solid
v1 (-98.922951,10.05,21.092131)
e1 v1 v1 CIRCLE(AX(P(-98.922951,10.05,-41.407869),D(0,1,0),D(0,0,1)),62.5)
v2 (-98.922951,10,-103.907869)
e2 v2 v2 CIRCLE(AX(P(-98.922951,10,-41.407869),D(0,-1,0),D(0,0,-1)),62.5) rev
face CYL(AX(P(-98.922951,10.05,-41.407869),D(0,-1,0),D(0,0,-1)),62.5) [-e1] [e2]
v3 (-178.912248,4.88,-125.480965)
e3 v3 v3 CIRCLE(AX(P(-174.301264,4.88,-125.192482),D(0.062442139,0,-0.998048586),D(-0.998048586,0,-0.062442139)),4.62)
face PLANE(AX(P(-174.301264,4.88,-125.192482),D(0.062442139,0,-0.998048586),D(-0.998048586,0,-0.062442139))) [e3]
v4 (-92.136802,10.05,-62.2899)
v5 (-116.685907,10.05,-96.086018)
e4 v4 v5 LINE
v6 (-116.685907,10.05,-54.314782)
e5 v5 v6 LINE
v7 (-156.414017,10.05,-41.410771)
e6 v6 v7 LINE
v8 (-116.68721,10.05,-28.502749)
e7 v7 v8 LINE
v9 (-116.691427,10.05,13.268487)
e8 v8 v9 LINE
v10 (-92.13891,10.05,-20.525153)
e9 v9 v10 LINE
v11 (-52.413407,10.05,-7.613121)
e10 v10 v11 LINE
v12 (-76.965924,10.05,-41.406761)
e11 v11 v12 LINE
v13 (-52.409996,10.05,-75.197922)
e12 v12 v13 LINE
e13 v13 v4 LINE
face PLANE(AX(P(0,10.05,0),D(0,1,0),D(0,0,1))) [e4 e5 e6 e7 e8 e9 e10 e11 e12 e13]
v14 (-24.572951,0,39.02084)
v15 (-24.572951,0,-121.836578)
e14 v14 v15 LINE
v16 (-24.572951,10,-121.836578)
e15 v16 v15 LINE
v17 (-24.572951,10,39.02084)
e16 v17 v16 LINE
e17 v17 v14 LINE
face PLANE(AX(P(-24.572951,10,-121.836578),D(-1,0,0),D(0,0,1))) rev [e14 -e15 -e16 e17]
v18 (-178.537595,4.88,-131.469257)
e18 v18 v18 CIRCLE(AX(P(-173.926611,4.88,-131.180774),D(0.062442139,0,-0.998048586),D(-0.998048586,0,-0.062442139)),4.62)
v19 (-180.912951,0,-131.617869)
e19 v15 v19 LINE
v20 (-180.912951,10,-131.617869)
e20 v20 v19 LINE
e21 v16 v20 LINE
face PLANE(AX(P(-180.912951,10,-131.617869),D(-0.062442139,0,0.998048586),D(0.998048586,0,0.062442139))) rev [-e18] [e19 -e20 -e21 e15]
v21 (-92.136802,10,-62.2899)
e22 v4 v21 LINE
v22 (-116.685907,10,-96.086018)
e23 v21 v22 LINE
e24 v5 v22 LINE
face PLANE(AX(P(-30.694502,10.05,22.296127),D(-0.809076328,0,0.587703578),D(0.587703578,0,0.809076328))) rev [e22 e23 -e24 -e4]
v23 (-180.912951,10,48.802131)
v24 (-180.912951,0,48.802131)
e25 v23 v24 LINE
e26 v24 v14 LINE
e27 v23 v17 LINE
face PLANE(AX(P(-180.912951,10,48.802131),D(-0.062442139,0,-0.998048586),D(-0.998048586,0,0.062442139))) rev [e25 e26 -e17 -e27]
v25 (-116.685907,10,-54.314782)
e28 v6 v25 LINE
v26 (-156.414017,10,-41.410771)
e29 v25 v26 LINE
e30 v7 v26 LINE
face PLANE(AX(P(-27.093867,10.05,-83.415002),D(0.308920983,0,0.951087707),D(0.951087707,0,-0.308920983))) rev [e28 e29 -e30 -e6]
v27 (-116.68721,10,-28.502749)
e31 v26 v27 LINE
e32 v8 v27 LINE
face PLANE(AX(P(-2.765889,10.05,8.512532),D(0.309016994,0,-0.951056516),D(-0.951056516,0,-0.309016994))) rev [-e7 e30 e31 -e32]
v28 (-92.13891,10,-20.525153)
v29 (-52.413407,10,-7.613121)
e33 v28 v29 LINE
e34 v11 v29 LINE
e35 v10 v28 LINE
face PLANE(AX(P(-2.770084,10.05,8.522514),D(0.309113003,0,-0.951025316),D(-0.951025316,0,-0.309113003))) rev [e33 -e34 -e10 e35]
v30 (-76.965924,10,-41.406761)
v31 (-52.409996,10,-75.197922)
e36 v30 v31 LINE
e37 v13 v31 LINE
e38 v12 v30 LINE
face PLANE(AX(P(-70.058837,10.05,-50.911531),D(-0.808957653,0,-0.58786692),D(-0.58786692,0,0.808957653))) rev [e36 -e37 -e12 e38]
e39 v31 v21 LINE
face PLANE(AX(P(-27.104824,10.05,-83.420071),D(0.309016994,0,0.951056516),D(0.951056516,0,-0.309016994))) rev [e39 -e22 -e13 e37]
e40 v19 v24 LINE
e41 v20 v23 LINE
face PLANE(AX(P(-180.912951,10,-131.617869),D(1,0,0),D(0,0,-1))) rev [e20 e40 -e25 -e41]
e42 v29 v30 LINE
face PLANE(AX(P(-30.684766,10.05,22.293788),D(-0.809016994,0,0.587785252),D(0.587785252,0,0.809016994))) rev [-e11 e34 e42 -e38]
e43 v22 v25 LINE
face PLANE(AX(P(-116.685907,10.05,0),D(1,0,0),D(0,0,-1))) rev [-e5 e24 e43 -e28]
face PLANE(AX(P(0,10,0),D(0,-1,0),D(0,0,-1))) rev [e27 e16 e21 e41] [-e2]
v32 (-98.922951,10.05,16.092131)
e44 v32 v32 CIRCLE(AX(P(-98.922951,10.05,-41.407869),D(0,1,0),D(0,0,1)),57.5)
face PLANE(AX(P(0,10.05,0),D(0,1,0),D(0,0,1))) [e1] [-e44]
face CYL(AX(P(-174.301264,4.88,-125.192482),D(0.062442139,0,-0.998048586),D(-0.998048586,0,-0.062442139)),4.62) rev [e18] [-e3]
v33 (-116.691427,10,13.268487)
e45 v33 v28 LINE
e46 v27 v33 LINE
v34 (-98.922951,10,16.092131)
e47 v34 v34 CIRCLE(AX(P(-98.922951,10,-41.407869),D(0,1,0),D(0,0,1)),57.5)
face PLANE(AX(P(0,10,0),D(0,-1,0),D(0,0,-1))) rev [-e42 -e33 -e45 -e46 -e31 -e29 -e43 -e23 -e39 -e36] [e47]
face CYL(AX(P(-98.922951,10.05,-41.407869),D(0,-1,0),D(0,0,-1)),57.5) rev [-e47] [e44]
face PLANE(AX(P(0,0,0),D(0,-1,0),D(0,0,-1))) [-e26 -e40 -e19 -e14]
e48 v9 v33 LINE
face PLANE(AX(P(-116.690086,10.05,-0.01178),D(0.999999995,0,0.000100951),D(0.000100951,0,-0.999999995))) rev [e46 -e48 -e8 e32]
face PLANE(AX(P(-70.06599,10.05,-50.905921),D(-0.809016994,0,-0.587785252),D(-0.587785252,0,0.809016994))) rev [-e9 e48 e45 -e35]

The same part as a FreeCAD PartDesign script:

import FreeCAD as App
import Part
import Sketcher
from FreeCAD import Vector
Q = App.Units.Quantity

doc = App.newDocument("Part")
body = doc.addObject("PartDesign::Body", "Body")

sketch1 = body.newObject("Sketcher::SketchObject", "Sketch")
sketch1.AttachmentSupport = (doc.getObject("XZ_Plane"), [""])
sketch1.MapMode = "FlatFace"
sketch1.addGeometry(Part.LineSegment(Vector(-180.912951, -131.617869, 0), Vector(-180.912951, 48.802131, 0)), False)
sketch1.addGeometry(Part.LineSegment(Vector(-180.912951, 48.802131, 0), Vector(-24.572951, 39.02084, 0)), False)
sketch1.addGeometry(Part.LineSegment(Vector(-24.572951, 39.02084, 0), Vector(-24.572951, -121.836578, 0)), False)
sketch1.addGeometry(Part.LineSegment(Vector(-24.572951, -121.836578, 0), Vector(-180.912951, -131.617869, 0)), False)
sketch1.addConstraint(Sketcher.Constraint("Coincident", 0, 2, 1, 1))
sketch1.addConstraint(Sketcher.Constraint("Coincident", 1, 2, 2, 1))
sketch1.addConstraint(Sketcher.Constraint("Coincident", 2, 2, 3, 1))
sketch1.addConstraint(Sketcher.Constraint("Coincident", 3, 2, 0, 1))
sketch1.addConstraint(Sketcher.Constraint("Vertical", 0))
sketch1.addConstraint(Sketcher.Constraint("Vertical", 2))
sketch1.addConstraint(Sketcher.Constraint("Equal", 1, 3))
sketch1.addConstraint(Sketcher.Constraint("DistanceY", 0, 1, 0, 2, Q("180.42 mm")))
sketch1.addConstraint(Sketcher.Constraint("Angle", 1, Q("-3.58 deg")))
sketch1.addConstraint(Sketcher.Constraint("DistanceX", 0, 2, 1, 2, Q("156.34 mm")))
sketch1.addConstraint(Sketcher.Constraint("DistanceX", 0, 2, -1, 1, Q("180.912951 mm")))
sketch1.addConstraint(Sketcher.Constraint("DistanceY", -1, 1, 0, 2, Q("48.802131 mm")))
pad1 = body.newObject("PartDesign::Pad", "Pad")
pad1.Profile = sketch1
pad1.Length = 10
pad1.Reversed = True

sketch2 = body.newObject("Sketcher::SketchObject", "Sketch001")
sketch2.Placement = App.Placement(Vector(7.49708, 0, -119.830141), App.Rotation(Vector(-0.998048586, 0, -0.062442139), Vector(0, 1.000000001, 0), Vector(0.062442139, 0, -0.998048586), "ZXY"))
sketch2.addGeometry(Part.Circle(Vector(181.778416, 4.88, 0), Vector(0, 0, 1), 4.62), False)
sketch2.addConstraint(Sketcher.Constraint("Diameter", 0, Q("9.24 mm")))
sketch2.addConstraint(Sketcher.Constraint("DistanceY", -1, 1, 0, 3, Q("4.88 mm")))
sketch2.addConstraint(Sketcher.Constraint("DistanceX", -1, 1, 0, 3, Q("181.778416 mm")))
pocket1 = body.newObject("PartDesign::Pocket", "Pocket")
pocket1.Profile = sketch2
pocket1.Length = 6

sketch3 = body.newObject("Sketcher::SketchObject", "Sketch002")
sketch3.AttachmentSupport = (doc.getObject("XZ_Plane"), [""])
sketch3.MapMode = "FlatFace"
sketch3.AttachmentOffset = App.Placement(Vector(0, 0, -10), App.Rotation())
sketch3.addGeometry(Part.Circle(Vector(-98.922951, -41.407869, 0), Vector(0, 0, 1), 62.5), False)
sketch3.addGeometry(Part.Circle(Vector(-98.922951, -41.407869, 0), Vector(0, 0, 1), 57.5), False)
sketch3.addGeometry(Part.LineSegment(Vector(-76.965924, -41.406761, 0), Vector(-52.409996, -75.197922, 0)), False)
sketch3.addGeometry(Part.LineSegment(Vector(-52.409996, -75.197922, 0), Vector(-92.136802, -62.2899, 0)), False)
sketch3.addGeometry(Part.LineSegment(Vector(-92.136802, -62.2899, 0), Vector(-116.685907, -96.086018, 0)), False)
sketch3.addGeometry(Part.LineSegment(Vector(-116.685907, -96.086018, 0), Vector(-116.685907, -54.314782, 0)), False)
sketch3.addGeometry(Part.LineSegment(Vector(-116.685907, -54.314782, 0), Vector(-156.414017, -41.410771, 0)), False)
sketch3.addGeometry(Part.LineSegment(Vector(-156.414017, -41.410771, 0), Vector(-116.68721, -28.502749, 0)), False)
sketch3.addGeometry(Part.LineSegment(Vector(-116.68721, -28.502749, 0), Vector(-116.691427, 13.268487, 0)), False)
sketch3.addGeometry(Part.LineSegment(Vector(-116.691427, 13.268487, 0), Vector(-92.13891, -20.525153, 0)), False)
sketch3.addGeometry(Part.LineSegment(Vector(-92.13891, -20.525153, 0), Vector(-52.413407, -7.613121, 0)), False)
sketch3.addGeometry(Part.LineSegment(Vector(-52.413407, -7.613121, 0), Vector(-76.965924, -41.406761, 0)), False)
sketch3.addConstraint(Sketcher.Constraint("Coincident", 2, 2, 3, 1))
sketch3.addConstraint(Sketcher.Constraint("Coincident", 3, 2, 4, 1))
sketch3.addConstraint(Sketcher.Constraint("Coincident", 4, 2, 5, 1))
sketch3.addConstraint(Sketcher.Constraint("Coincident", 5, 2, 6, 1))
sketch3.addConstraint(Sketcher.Constraint("Coincident", 6, 2, 7, 1))
sketch3.addConstraint(Sketcher.Constraint("Coincident", 7, 2, 8, 1))
sketch3.addConstraint(Sketcher.Constraint("Coincident", 8, 2, 9, 1))
sketch3.addConstraint(Sketcher.Constraint("Coincident", 9, 2, 10, 1))
sketch3.addConstraint(Sketcher.Constraint("Coincident", 10, 2, 11, 1))
sketch3.addConstraint(Sketcher.Constraint("Coincident", 11, 2, 2, 1))
sketch3.addConstraint(Sketcher.Constraint("Vertical", 5))
sketch3.addConstraint(Sketcher.Constraint("Coincident", 1, 3, 0, 3))
sketch3.addConstraint(Sketcher.Constraint("Equal", 2, 3))
sketch3.addConstraint(Sketcher.Constraint("Equal", 3, 4))
sketch3.addConstraint(Sketcher.Constraint("Equal", 4, 6))
sketch3.addConstraint(Sketcher.Constraint("Equal", 6, 7))
sketch3.addConstraint(Sketcher.Constraint("Equal", 7, 8))
sketch3.addConstraint(Sketcher.Constraint("Equal", 8, 9))
sketch3.addConstraint(Sketcher.Constraint("Equal", 9, 10))
sketch3.addConstraint(Sketcher.Constraint("Equal", 10, 11))
sketch3.addConstraint(Sketcher.Constraint("Diameter", 0, Q("125 mm")))
sketch3.addConstraint(Sketcher.Constraint("Diameter", 1, Q("115 mm")))
sketch3.addConstraint(Sketcher.Constraint("Angle", 3, Q("162 deg")))
sketch3.addConstraint(Sketcher.Constraint("Angle", 7, Q("18 deg")))
sketch3.addConstraint(Sketcher.Constraint("Angle", 9, Q("-54 deg")))
sketch3.addConstraint(Sketcher.Constraint("Angle", 11, Q("-126 deg")))
sketch3.addConstraint(Sketcher.Constraint("DistanceY", 3, 2, -1, 1, Q("62.2899 mm")))
sketch3.addConstraint(Sketcher.Constraint("DistanceY", 6, 2, 0, 3, Q("0.002902 mm")))
sketch3.addConstraint(Sketcher.Constraint("DistanceX", 7, 2, 9, 2, Q("24.5483 mm")))
sketch3.addConstraint(Sketcher.Constraint("DistanceY", 5, 1, 5, 2, Q("41.771236 mm")))
sketch3.addConstraint(Sketcher.Constraint("DistanceX", 0, 3, -1, 1, Q("98.922951 mm")))
sketch3.addConstraint(Sketcher.Constraint("DistanceY", 0, 3, -1, 1, Q("41.407869 mm")))
sketch3.addConstraint(Sketcher.Constraint("DistanceY", 2, 2, -1, 1, Q("75.197922 mm")))
sketch3.addConstraint(Sketcher.Constraint("DistanceY", 4, 2, -1, 1, Q("96.086018 mm")))
sketch3.addConstraint(Sketcher.Constraint("DistanceX", 7, 2, -1, 1, Q("116.68721 mm")))
pad2 = body.newObject("PartDesign::Pad", "Pad001")
pad2.Profile = sketch3
pad2.Length = 0.05
pad2.Reversed = True

doc.recompute()
